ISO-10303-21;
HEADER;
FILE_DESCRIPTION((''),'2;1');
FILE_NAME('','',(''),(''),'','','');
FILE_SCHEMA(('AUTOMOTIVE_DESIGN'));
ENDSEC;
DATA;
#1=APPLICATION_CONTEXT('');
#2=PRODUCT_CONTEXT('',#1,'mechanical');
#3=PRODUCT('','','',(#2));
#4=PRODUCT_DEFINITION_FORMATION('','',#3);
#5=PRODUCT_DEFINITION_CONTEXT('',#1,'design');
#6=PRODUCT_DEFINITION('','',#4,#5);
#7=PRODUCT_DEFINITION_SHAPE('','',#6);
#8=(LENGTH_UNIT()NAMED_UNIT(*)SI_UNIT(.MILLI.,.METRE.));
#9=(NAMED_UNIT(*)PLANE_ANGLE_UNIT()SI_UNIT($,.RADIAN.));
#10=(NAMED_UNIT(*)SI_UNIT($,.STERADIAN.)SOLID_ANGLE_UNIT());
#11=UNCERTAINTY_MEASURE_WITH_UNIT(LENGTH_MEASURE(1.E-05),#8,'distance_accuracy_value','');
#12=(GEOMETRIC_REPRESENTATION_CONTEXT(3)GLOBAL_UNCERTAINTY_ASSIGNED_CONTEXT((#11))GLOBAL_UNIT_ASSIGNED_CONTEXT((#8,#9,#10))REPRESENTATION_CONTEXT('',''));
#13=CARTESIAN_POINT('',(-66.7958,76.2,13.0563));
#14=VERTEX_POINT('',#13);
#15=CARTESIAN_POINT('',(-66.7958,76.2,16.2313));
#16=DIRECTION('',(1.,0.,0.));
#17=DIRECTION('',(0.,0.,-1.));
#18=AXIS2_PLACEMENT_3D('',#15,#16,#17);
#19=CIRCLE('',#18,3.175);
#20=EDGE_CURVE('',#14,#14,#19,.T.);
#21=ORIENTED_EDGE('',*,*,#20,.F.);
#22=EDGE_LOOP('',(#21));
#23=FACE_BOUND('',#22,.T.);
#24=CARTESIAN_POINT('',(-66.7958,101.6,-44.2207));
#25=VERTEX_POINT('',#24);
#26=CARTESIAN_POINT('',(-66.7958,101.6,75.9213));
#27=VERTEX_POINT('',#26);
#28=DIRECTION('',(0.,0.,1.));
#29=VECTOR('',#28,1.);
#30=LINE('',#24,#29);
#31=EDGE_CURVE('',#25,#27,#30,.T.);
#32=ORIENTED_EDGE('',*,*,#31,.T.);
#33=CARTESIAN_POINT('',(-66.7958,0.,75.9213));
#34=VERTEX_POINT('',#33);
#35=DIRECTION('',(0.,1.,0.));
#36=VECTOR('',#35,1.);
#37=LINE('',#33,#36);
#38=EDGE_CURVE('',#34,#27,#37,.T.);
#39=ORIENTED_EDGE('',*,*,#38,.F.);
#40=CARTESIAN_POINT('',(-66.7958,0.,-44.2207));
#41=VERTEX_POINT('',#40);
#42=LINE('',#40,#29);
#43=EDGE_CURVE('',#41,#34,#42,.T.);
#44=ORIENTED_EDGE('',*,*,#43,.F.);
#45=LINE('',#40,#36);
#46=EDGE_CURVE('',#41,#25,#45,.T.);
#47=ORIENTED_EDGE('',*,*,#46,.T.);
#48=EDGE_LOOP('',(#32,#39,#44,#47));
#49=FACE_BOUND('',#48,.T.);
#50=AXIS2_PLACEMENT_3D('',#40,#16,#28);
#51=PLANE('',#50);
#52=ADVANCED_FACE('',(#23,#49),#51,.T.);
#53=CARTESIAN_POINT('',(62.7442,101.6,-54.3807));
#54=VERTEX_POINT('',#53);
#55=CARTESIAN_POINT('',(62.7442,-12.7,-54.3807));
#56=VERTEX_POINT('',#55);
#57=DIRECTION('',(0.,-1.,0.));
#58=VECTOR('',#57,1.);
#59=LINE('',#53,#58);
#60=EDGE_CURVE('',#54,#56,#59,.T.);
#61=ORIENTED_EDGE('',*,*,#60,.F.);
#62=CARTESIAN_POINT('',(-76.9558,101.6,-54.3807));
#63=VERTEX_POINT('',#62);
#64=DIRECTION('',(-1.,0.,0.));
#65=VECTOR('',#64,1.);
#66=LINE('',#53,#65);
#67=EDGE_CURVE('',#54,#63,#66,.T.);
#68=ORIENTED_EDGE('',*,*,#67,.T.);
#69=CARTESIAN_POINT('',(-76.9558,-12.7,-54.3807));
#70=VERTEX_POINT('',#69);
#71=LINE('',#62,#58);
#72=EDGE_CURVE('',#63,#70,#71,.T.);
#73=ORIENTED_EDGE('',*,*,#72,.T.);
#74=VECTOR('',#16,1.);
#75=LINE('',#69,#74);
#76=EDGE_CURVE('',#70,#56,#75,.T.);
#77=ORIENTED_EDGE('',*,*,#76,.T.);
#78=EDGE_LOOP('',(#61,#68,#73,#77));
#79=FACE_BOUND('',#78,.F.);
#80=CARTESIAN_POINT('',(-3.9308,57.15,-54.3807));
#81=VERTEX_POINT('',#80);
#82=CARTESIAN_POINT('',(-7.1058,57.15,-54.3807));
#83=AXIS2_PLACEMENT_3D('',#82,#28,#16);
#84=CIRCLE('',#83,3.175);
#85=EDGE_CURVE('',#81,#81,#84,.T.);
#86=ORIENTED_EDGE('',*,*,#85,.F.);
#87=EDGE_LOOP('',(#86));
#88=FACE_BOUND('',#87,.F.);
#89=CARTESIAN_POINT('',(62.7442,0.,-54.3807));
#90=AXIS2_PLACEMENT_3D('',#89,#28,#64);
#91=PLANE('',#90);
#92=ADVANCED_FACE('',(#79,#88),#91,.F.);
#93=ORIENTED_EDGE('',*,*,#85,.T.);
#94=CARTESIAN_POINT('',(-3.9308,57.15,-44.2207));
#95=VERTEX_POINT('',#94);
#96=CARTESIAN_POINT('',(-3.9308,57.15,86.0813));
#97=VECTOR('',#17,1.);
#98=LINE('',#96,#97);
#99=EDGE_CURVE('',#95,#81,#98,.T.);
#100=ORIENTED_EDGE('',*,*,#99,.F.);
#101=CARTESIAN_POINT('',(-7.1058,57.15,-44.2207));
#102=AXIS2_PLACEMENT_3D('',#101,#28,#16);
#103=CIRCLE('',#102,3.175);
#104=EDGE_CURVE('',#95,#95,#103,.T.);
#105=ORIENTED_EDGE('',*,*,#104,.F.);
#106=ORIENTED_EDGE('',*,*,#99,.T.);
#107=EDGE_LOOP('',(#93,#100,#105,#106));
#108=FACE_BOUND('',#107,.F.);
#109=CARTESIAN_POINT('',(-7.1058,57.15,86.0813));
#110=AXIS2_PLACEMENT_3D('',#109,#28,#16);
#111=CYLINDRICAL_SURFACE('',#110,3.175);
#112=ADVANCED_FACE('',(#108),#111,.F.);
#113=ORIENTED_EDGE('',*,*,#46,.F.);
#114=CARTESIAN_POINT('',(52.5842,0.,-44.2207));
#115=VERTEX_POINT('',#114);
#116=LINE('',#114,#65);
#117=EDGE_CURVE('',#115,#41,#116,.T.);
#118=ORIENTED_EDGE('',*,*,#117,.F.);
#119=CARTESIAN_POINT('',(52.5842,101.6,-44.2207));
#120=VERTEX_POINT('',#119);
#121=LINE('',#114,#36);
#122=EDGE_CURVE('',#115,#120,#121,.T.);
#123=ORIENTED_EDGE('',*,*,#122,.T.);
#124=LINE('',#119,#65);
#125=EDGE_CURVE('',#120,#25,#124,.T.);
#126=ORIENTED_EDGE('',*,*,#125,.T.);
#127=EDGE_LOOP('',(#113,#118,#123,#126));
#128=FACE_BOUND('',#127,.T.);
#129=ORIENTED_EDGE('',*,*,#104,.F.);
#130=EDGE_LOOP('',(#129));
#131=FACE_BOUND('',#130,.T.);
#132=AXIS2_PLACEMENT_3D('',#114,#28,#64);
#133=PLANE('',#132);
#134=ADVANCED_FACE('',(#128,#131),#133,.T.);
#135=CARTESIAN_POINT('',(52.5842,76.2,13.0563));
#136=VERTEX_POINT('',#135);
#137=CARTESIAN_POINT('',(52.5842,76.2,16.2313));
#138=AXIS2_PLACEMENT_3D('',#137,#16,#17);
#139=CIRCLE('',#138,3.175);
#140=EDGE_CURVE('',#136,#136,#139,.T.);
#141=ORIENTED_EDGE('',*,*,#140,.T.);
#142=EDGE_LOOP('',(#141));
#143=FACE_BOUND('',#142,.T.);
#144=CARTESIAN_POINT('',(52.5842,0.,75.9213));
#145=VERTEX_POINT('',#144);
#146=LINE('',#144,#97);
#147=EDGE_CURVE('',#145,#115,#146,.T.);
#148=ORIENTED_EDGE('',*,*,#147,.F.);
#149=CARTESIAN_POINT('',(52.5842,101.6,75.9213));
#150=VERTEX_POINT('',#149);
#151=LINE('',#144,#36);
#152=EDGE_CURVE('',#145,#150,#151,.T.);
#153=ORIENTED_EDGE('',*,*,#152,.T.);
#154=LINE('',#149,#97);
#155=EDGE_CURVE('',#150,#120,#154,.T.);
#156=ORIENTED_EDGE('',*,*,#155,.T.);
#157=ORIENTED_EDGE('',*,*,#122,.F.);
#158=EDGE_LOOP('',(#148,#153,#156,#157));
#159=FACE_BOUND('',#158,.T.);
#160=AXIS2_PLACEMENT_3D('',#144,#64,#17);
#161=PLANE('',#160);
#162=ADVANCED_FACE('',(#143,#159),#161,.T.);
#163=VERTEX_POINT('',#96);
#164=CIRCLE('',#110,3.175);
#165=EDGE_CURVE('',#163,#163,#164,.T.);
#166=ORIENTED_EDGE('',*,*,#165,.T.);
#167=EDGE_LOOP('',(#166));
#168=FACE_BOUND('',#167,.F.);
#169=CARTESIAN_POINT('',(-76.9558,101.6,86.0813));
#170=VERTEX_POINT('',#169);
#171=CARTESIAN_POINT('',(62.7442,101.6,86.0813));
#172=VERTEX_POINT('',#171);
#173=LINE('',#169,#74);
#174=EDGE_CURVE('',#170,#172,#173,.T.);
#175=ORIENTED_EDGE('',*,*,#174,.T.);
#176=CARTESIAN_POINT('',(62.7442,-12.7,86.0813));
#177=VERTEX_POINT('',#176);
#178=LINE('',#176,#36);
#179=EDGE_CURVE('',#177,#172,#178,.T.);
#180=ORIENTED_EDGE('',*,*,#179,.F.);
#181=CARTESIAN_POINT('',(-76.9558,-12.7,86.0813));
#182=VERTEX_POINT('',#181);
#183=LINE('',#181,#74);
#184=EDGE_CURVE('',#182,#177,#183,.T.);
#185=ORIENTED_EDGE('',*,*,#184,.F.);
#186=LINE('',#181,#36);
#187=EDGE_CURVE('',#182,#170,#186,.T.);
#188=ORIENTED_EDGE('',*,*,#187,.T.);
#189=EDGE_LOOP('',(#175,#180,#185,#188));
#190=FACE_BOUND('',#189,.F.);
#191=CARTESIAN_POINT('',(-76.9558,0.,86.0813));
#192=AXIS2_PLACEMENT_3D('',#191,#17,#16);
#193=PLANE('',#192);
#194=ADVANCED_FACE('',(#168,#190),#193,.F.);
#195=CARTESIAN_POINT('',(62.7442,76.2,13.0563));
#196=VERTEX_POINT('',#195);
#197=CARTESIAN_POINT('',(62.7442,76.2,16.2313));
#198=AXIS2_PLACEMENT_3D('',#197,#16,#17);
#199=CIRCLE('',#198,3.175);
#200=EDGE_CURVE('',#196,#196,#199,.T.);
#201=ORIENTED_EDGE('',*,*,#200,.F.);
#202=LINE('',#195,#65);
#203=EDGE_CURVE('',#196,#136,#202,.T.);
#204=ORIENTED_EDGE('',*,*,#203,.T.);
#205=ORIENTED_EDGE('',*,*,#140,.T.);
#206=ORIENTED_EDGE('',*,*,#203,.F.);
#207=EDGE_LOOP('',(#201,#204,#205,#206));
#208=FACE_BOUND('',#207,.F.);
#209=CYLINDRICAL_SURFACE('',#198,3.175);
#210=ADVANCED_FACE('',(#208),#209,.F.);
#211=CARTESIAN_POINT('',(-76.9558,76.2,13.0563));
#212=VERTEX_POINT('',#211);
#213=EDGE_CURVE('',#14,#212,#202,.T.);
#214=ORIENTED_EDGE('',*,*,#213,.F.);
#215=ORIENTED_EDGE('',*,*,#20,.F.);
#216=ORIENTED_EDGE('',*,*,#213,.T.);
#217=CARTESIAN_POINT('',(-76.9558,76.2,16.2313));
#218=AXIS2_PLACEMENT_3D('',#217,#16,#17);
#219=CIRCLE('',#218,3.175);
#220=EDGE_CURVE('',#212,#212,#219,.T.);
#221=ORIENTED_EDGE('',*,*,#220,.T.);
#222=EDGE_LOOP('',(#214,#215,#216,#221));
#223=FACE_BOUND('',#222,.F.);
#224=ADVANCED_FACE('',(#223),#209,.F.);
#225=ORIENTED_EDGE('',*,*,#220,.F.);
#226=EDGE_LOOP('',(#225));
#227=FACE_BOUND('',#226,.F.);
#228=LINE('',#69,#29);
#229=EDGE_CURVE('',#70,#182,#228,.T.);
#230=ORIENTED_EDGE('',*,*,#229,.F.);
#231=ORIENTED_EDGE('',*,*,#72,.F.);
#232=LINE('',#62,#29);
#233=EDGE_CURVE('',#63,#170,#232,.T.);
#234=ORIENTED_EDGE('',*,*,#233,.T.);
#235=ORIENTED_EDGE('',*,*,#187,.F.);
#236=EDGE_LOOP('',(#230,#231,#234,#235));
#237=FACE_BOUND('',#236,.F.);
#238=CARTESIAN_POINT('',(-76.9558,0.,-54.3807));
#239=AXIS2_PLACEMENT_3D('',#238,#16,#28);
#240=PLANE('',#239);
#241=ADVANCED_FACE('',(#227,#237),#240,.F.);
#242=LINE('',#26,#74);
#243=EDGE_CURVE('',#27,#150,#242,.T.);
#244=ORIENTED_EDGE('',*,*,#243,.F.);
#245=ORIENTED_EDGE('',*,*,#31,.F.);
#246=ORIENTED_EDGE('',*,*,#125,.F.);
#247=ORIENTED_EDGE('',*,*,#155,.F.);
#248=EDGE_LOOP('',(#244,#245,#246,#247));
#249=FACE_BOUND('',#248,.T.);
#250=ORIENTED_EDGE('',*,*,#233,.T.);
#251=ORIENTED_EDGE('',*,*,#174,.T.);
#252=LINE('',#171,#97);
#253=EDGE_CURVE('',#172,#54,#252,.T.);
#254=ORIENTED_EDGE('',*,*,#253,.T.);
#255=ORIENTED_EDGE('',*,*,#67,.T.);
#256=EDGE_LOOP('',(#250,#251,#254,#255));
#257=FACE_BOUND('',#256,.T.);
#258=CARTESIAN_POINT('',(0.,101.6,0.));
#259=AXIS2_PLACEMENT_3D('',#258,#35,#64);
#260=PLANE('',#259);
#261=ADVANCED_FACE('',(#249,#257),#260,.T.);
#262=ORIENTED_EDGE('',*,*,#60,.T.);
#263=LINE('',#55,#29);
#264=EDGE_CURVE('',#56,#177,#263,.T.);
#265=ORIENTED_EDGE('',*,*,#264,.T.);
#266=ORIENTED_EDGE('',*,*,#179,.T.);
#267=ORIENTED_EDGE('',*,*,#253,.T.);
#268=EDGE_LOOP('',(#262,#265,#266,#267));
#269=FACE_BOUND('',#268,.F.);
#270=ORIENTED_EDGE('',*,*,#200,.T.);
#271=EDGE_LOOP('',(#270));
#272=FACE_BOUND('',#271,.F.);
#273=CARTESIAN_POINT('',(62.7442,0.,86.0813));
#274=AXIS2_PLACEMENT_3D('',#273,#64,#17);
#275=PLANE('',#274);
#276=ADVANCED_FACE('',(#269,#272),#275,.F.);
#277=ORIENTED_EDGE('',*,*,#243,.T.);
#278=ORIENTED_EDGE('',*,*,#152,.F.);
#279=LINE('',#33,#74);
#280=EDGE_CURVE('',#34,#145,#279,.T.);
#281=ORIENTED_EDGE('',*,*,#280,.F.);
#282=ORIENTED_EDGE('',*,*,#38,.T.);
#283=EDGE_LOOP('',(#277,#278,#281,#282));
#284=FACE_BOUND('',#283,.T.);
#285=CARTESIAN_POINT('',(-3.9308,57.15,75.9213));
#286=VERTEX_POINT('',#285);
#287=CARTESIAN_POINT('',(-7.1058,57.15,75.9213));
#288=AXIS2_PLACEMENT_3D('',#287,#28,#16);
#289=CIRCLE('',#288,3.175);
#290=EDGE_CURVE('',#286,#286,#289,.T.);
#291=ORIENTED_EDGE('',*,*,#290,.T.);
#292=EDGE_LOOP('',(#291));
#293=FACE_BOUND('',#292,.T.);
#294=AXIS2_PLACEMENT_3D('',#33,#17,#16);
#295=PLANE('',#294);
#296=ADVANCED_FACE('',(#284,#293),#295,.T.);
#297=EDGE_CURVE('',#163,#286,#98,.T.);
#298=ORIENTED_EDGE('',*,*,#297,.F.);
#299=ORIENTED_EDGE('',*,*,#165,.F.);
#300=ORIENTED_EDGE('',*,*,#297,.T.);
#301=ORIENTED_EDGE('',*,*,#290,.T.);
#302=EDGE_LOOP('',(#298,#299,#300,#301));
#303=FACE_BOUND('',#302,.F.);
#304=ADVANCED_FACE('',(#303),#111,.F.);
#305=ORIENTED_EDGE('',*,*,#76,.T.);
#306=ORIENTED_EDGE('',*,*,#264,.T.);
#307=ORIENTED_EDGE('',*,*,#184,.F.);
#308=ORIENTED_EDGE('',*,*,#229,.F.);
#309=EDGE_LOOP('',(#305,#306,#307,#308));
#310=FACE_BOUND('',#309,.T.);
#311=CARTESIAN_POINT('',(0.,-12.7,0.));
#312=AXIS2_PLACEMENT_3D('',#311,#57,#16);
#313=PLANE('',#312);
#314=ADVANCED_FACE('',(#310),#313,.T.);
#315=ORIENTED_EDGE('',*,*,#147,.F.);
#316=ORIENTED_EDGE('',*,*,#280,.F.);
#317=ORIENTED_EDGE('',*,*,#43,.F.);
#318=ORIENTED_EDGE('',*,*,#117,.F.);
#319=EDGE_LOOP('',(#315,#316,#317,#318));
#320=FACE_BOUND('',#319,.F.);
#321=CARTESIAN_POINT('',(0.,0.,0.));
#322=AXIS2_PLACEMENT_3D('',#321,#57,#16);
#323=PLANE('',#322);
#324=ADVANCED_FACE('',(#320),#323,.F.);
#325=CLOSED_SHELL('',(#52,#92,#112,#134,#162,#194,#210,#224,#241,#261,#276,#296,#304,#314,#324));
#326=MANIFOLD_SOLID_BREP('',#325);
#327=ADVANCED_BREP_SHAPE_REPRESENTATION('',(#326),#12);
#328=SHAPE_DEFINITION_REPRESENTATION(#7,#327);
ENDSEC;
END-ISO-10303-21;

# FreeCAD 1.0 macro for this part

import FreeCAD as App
import Part
import Sketcher
from FreeCAD import Vector
Q = App.Units.Quantity


def add_polygon(sketch, points):
    """Adds a closed chain of lines whose ends are joined by coincident constraints."""
    first, n = sketch.GeometryCount, len(points)
    for a, b in zip(points, points[1:] + points[:1]):
        sketch.addGeometry(Part.LineSegment(App.Vector(*a, 0), App.Vector(*b, 0)), False)
    for i in range(n):
        sketch.addConstraint(Sketcher.Constraint("Coincident", first + i, 2, first + (i + 1) % n, 1))

doc = App.newDocument("Part")
body = doc.addObject("PartDesign::Body", "Body")

# Sketch on XZ plane
sketch1 = body.newObject("Sketcher::SketchObject", "Sketch")
sketch1.AttachmentSupport = (doc.getObject("XZ_Plane"), [""])
sketch1.MapMode = "FlatFace"
add_polygon(sketch1, [(-76.9558, -54.3807), (-76.9558, 86.0813), (62.7442, 86.0813), (62.7442, -54.3807)])  # lines 0-3
add_polygon(sketch1, [(52.5842, 75.9213), (-66.7958, 75.9213), (-66.7958, -44.2207), (52.5842, -44.2207)])  # lines 4-7
sketch1.addConstraint([
    Sketcher.Constraint("Vertical", 0),
    Sketcher.Constraint("Horizontal", 1),
    Sketcher.Constraint("Vertical", 2),
    Sketcher.Constraint("Horizontal", 3),
    Sketcher.Constraint("Horizontal", 4),
    Sketcher.Constraint("Vertical", 5),
    Sketcher.Constraint("Horizontal", 6),
    Sketcher.Constraint("Vertical", 7),
    Sketcher.Constraint("DistanceX", 4, 2, 4, 1, Q("4.7 in")),
    Sketcher.Constraint("DistanceY", 5, 2, 5, 1, Q("4.73 in")),
    Sketcher.Constraint("DistanceX", 0, 2, 4, 2, Q("0.4 in")),
    Sketcher.Constraint("DistanceY", 4, 2, 0, 2, Q("0.4 in")),
    Sketcher.Constraint("DistanceY", 3, 2, 5, 2, Q("0.4 in")),
    Sketcher.Constraint("DistanceX", 6, 2, 2, 2, Q("0.4 in")),
    Sketcher.Constraint("DistanceX", 0, 2, -1, 1, Q("76.9558 mm")),
    Sketcher.Constraint("DistanceY", -1, 1, 0, 2, Q("86.0813 mm")),
])
pad1 = body.newObject("PartDesign::Pad", "Pad")
pad1.Profile = sketch1
pad1.Length = Q("4 in")
pad1.Reversed = True

# Sketch on XZ plane
sketch2 = body.newObject("Sketcher::SketchObject", "Sketch001")
sketch2.AttachmentSupport = (doc.getObject("XZ_Plane"), [""])
sketch2.MapMode = "FlatFace"
add_polygon(sketch2, [(62.7442, 86.0813), (-76.9558, 86.0813), (-76.9558, -54.3807), (62.7442, -54.3807)])  # lines 0-3
sketch2.addConstraint([
    Sketcher.Constraint("Horizontal", 0),
    Sketcher.Constraint("Vertical", 1),
    Sketcher.Constraint("Horizontal", 2),
    Sketcher.Constraint("Vertical", 3),
    Sketcher.Constraint("DistanceX", 0, 2, 0, 1, Q("5.5 in")),
    Sketcher.Constraint("DistanceY", 1, 2, 1, 1, Q("5.53 in")),
    Sketcher.Constraint("DistanceX", 0, 2, -1, 1, Q("76.9558 mm")),
    Sketcher.Constraint("DistanceY", -1, 1, 0, 2, Q("86.0813 mm")),
])
pad2 = body.newObject("PartDesign::Pad", "Pad001")
pad2.Profile = sketch2
pad2.Length = Q("0.5 in")

# Sketch on YZ plane
sketch3 = body.newObject("Sketcher::SketchObject", "Sketch002")
sketch3.AttachmentSupport = (doc.getObject("YZ_Plane"), [""])
sketch3.MapMode = "FlatFace"
sketch3.AttachmentOffset = App.Placement(Vector(0, 0, 62.7442), App.Rotation())
sketch3.addGeometry(Part.Circle(Vector(76.2, 16.2313, 0), Vector(0, 0, 1), 3.175), False)
sketch3.addConstraint([
    Sketcher.Constraint("Diameter", 0, Q("0.25 in")),
    Sketcher.Constraint("DistanceX", -1, 1, 0, 3, Q("3 in")),
    Sketcher.Constraint("DistanceY", -1, 1, 0, 3, Q("16.2313 mm")),
])
pocket1 = body.newObject("PartDesign::Pocket", "Pocket")
pocket1.Profile = sketch3
pocket1.Length = Q("7 in")

# Sketch on XY plane
sketch4 = body.newObject("Sketcher::SketchObject", "Sketch003")
sketch4.AttachmentSupport = (doc.getObject("XY_Plane"), [""])
sketch4.MapMode = "FlatFace"
sketch4.AttachmentOffset = App.Placement(Vector(0, 0, 86.0813), App.Rotation())
sketch4.addGeometry(Part.Circle(Vector(-7.1058, 57.15, 0), Vector(0, 0, 1), 3.175), False)
sketch4.addConstraint([
    Sketcher.Constraint("Diameter", 0, Q("0.25 in")),
    Sketcher.Constraint("DistanceY", -1, 1, 0, 3, Q("2.25 in")),
    Sketcher.Constraint("DistanceX", 0, 3, -1, 1, Q("7.1058 mm")),
])
pocket2 = body.newObject("PartDesign::Pocket", "Pocket001")
pocket2.Profile = sketch4
pocket2.Length = Q("7 in")

doc.recompute()
